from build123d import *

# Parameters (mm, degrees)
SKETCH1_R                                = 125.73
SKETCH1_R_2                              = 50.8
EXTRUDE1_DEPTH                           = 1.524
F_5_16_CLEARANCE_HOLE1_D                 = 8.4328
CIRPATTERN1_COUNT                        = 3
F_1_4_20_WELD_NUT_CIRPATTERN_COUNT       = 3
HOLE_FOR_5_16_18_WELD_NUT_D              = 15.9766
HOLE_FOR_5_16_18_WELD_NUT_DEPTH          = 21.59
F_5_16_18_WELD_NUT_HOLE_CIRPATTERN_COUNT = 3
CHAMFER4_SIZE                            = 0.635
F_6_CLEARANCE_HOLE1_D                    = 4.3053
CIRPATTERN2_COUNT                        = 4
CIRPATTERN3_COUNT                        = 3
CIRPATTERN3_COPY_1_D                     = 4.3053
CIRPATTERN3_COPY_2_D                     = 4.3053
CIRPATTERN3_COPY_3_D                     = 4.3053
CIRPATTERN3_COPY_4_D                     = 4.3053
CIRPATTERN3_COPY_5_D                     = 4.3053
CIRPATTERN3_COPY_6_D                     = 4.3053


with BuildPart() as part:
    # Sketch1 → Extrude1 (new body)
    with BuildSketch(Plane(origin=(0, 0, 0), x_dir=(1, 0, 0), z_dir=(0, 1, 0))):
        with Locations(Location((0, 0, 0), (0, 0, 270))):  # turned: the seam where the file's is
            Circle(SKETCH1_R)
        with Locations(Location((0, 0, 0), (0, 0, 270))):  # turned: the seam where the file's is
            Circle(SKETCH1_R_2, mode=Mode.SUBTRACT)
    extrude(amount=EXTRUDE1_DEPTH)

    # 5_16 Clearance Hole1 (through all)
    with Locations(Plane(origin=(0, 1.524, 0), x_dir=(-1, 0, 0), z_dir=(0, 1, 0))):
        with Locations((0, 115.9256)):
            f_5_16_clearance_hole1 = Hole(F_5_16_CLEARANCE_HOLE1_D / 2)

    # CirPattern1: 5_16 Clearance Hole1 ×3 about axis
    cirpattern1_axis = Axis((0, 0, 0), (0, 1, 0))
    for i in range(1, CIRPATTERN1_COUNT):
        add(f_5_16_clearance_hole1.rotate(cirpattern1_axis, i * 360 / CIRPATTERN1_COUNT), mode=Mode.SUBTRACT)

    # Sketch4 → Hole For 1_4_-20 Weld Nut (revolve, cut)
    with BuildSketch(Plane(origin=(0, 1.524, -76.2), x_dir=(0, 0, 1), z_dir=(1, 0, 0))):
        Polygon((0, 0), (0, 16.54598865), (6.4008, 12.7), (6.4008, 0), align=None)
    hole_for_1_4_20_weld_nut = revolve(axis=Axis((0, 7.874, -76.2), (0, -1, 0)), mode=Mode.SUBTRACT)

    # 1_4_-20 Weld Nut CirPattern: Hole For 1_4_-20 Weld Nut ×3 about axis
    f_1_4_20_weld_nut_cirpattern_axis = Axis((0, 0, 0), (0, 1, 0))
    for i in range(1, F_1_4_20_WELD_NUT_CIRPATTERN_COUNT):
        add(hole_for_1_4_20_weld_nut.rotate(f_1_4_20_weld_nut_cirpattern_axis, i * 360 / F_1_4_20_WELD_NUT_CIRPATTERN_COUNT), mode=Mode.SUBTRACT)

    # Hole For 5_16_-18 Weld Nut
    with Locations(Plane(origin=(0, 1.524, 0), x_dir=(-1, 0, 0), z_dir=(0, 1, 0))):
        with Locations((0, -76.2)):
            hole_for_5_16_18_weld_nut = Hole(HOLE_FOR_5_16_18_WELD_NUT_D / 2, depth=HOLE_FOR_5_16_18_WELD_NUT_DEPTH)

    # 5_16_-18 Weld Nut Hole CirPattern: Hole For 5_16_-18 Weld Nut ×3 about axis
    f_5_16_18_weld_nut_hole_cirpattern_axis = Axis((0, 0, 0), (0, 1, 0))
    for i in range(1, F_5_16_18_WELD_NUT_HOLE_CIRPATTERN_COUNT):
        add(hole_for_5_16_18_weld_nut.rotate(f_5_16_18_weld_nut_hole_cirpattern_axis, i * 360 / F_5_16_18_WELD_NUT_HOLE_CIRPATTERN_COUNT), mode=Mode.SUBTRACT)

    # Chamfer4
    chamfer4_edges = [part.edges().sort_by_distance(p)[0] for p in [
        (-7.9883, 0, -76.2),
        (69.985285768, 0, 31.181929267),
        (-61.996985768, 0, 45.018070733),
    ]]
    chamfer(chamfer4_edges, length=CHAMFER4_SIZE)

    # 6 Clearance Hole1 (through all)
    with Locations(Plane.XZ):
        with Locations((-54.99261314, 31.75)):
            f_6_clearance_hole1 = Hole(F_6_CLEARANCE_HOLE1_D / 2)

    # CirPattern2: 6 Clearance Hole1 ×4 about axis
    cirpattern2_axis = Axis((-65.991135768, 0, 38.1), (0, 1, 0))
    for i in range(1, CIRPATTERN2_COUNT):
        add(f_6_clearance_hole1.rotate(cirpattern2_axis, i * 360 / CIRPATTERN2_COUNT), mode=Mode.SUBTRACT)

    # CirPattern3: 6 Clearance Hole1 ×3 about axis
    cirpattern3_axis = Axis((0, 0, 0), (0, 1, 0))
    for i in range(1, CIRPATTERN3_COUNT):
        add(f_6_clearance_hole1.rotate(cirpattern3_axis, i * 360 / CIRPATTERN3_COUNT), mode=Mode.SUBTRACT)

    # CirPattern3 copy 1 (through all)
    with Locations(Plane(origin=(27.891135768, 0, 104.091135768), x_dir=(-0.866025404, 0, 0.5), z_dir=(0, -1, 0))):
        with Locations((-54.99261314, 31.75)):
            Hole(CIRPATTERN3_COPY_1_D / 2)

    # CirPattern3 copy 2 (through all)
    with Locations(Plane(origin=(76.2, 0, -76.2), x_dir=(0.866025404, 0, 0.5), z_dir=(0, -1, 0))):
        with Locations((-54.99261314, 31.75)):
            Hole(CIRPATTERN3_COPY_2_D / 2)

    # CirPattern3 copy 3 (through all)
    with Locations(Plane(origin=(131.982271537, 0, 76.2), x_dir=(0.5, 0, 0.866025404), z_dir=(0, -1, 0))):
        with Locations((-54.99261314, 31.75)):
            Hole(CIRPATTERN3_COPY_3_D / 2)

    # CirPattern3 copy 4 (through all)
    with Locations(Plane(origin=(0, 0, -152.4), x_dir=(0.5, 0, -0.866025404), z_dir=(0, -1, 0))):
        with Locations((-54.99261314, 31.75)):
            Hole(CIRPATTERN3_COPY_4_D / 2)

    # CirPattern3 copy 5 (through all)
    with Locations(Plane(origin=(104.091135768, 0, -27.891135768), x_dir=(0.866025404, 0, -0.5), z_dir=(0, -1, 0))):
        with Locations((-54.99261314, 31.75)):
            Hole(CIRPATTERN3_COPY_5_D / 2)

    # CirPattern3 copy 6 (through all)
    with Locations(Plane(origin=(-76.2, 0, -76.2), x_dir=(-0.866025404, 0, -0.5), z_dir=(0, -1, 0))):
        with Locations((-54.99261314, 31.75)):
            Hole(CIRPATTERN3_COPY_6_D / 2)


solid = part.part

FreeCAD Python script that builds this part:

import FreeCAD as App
import Part
import Sketcher
from FreeCAD import Vector
Q = App.Units.Quantity


def edges_at(feature, points):
    """Names of the edges that pass closest to the given points."""
    edges = feature.Shape.Edges
    near = lambda p: min(range(len(edges)), key=lambda i: edges[i].distToShape(Part.Vertex(*p))[0])
    return sorted({f"Edge{near(p) + 1}" for p in points})

doc = App.newDocument("Part")
body = doc.addObject("PartDesign::Body", "Body")

sketch1 = body.newObject("Sketcher::SketchObject", "Sketch")
sketch1.AttachmentSupport = (doc.getObject("XZ_Plane"), [""])
sketch1.MapMode = "FlatFace"
sketch1.addGeometry(Part.Circle(Vector(0, 0, 0), Vector(0, 0, 1), 126), False)
sketch1.addGeometry(Part.Circle(Vector(0, 0, 0), Vector(0, 0, 1), 51), False)
sketch1.addConstraint(Sketcher.Constraint("Coincident", 0, 3, -1, 1))
sketch1.addConstraint(Sketcher.Constraint("Coincident", 1, 3, -1, 1))
sketch1.addConstraint(Sketcher.Constraint("Diameter", 1, Q("4 in")))
sketch1.addConstraint(Sketcher.Constraint("Diameter", 0, Q("9.9 in")))
pad1 = body.newObject("PartDesign::Pad", "Pad")
pad1.Profile = sketch1
pad1.Length = Q("0.06 in")
pad1.Reversed = True

sketch2 = body.newObject("Sketcher::SketchObject", "Sketch001")
sketch2.AttachmentSupport = (doc.getObject("XZ_Plane"), [""])
sketch2.MapMode = "FlatFace"
sketch2.AttachmentOffset = App.Placement(Vector(0, 0, -0.06 * 25.4), App.Rotation())
sketch2.addGeometry(Part.Circle(Vector(0, 115.9, 0), Vector(0, 0, 1), 4.2), False)
sketch2.addConstraint(Sketcher.Constraint("PointOnObject", 0, 3, -2))
sketch2.addConstraint(Sketcher.Constraint("Diameter", 0, Q("0.332 in")))
sketch2.addConstraint(Sketcher.Constraint("DistanceY", -1, 1, 0, 3, Q("4.564 in")))
doc.recompute()
hole = body.newObject("PartDesign::Hole", "Hole")
hole.Profile = sketch2
hole.ThreadType = "None"
hole.Diameter = Q("0.332 in")
hole.DepthType = "ThroughAll"
hole.Reversed = True
doc.recompute()

polarpattern = body.newObject("PartDesign::PolarPattern", "PolarPattern")
polarpattern.Originals = [hole]
polarpattern.Axis = (doc.getObject("Y_Axis"), [""])
polarpattern.Angle = 360
polarpattern.Occurrences = 3
body.Tip = polarpattern

sketch3 = body.newObject("Sketcher::SketchObject", "Sketch002")
sketch3.AttachmentSupport = (doc.getObject("YZ_Plane"), [""])
sketch3.MapMode = "FlatFace"
sketch3.addGeometry(Part.LineSegment(Vector(-15, -76, 0), Vector(2, -76, 0)), False)
sketch3.addGeometry(Part.LineSegment(Vector(2, -76, 0), Vector(2, -70, 0)), False)
sketch3.addGeometry(Part.LineSegment(Vector(2, -70, 0), Vector(-11, -70, 0)), False)
sketch3.addGeometry(Part.LineSegment(Vector(-11, -70, 0), Vector(-15, -76, 0)), False)
sketch3.addGeometry(Part.LineSegment(Vector(2, -76, 0), Vector(-15, -76, 0)), True)
sketch3.addConstraint(Sketcher.Constraint("Coincident", 0, 2, 1, 1))
sketch3.addConstraint(Sketcher.Constraint("Coincident", 1, 2, 2, 1))
sketch3.addConstraint(Sketcher.Constraint("Coincident", 2, 2, 3, 1))
sketch3.addConstraint(Sketcher.Constraint("Coincident", 3, 2, 0, 1))
sketch3.addConstraint(Sketcher.Constraint("Horizontal", 0))
sketch3.addConstraint(Sketcher.Constraint("Vertical", 1))
sketch3.addConstraint(Sketcher.Constraint("Horizontal", 2))
sketch3.addConstraint(Sketcher.Constraint("Horizontal", 4))
sketch3.addConstraint(Sketcher.Constraint("Coincident", 4, 1, 0, 2))
sketch3.addConstraint(Sketcher.Constraint("Equal", 0, 4))
sketch3.addConstraint(Sketcher.Constraint("DistanceX", 2, 2, 2, 1, Q("0.5 in")))
sketch3.addConstraint(Sketcher.Constraint("DistanceY", 0, 2, -1, 1, Q("3 in")))
sketch3.addConstraint(Sketcher.Constraint("Angle", 3, Q("-121 deg")))
sketch3.addConstraint(Sketcher.Constraint("DistanceY", 1, 1, 1, 2, Q("0.252 in")))
sketch3.addConstraint(Sketcher.Constraint("DistanceX", -1, 1, 0, 2, Q("0.06 in")))
groove = body.newObject("PartDesign::Groove", "Groove")
groove.Profile = sketch3
groove.ReferenceAxis = (sketch3, ["Axis0"])
groove.Angle = 360
doc.recompute()

polarpattern2 = body.newObject("PartDesign::PolarPattern", "PolarPattern001")
polarpattern2.Originals = [groove]
polarpattern2.Axis = (doc.getObject("Y_Axis"), [""])
polarpattern2.Angle = 360
polarpattern2.Occurrences = 3
body.Tip = polarpattern2

sketch4 = body.newObject("Sketcher::SketchObject", "Sketch003")
sketch4.AttachmentSupport = (doc.getObject("XZ_Plane"), [""])
sketch4.MapMode = "FlatFace"
sketch4.AttachmentOffset = App.Placement(Vector(0, 0, -0.06 * 25.4), App.Rotation())
sketch4.addGeometry(Part.Circle(Vector(0, -76, 0), Vector(0, 0, 1), 8), False)
sketch4.addConstraint(Sketcher.Constraint("PointOnObject", 0, 3, -2))
sketch4.addConstraint(Sketcher.Constraint("Diameter", 0, Q("0.629 in")))
sketch4.addConstraint(Sketcher.Constraint("DistanceY", 0, 3, -1, 1, Q("3 in")))
doc.recompute()
hole2 = body.newObject("PartDesign::Hole", "Hole001")
hole2.Profile = sketch4
hole2.ThreadType = "None"
hole2.Diameter = Q("0.629 in")
hole2.DepthType = "Dimension"
hole2.Depth = Q("0.85 in")
hole2.DrillPoint = "Flat"
hole2.Reversed = True
doc.recompute()

polarpattern3 = body.newObject("PartDesign::PolarPattern", "PolarPattern002")
polarpattern3.Originals = [hole2]
polarpattern3.Axis = (doc.getObject("Y_Axis"), [""])
polarpattern3.Angle = 360
polarpattern3.Occurrences = 3
body.Tip = polarpattern3
doc.recompute()

chamfer = body.newObject("PartDesign::Chamfer", "Chamfer")
chamfer.Base = (polarpattern3, edges_at(polarpattern3, [(-7.988, 0, -76.2), (69.985, 0, 31.182), (-61.997, 0, 45.018)]))
chamfer.Size = Q("0.025 in")

sketch5 = body.newObject("Sketcher::SketchObject", "Sketch004")
sketch5.AttachmentSupport = (doc.getObject("XZ_Plane"), [""])
sketch5.MapMode = "FlatFace"
sketch5.addGeometry(Part.Circle(Vector(-55, 31.8, 0), Vector(0, 0, 1), 2.2), False)
sketch5.addConstraint(Sketcher.Constraint("Diameter", 0, Q("0.1695 in")))
sketch5.addConstraint(Sketcher.Constraint("DistanceY", -1, 1, 0, 3, Q("1.25 in")))
sketch5.addConstraint(Sketcher.Constraint("DistanceX", 0, 3, -1, 1, Q("54.992613 mm")))
doc.recompute()
hole3 = body.newObject("PartDesign::Hole", "Hole002")
hole3.Profile = sketch5
hole3.ThreadType = "None"
hole3.Diameter = Q("0.1695 in")
hole3.DepthType = "ThroughAll"
doc.recompute()

datumline = body.newObject("PartDesign::Line", "DatumLine")
datumline.Placement = App.Placement(Vector(-65.991136, 0, 38.1), App.Rotation(Vector(0, 0, 1), Vector(0, 1, 0)))
polarpattern4 = body.newObject("PartDesign::PolarPattern", "PolarPattern003")
polarpattern4.Originals = [hole3]
polarpattern4.Axis = (datumline, [""])
polarpattern4.Angle = 360
polarpattern4.Occurrences = 4
body.Tip = polarpattern4
doc.recompute()

polarpattern5 = body.newObject("PartDesign::PolarPattern", "PolarPattern004")
polarpattern5.Originals = [hole3]
polarpattern5.Axis = (doc.getObject("Y_Axis"), [""])
polarpattern5.Angle = 360
polarpattern5.Occurrences = 3
body.Tip = polarpattern5

sketch6 = body.newObject("Sketcher::SketchObject", "Sketch005")
sketch6.AttachmentSupport = (doc.getObject("XZ_Plane"), [""])
sketch6.MapMode = "FlatFace"
sketch6.addGeometry(Part.Circle(Vector(59.6, 49.1, 0), Vector(0, 0, 1), 2.2), False)
sketch6.addConstraint(Sketcher.Constraint("Diameter", 0, Q("0.1695 in")))
sketch6.addConstraint(Sketcher.Constraint("DistanceX", -1, 1, 0, 3, Q("59.641136 mm")))
sketch6.addConstraint(Sketcher.Constraint("DistanceY", -1, 1, 0, 3, Q("49.098523 mm")))
doc.recompute()
hole4 = body.newObject("PartDesign::Hole", "Hole003")
hole4.Profile = sketch6
hole4.ThreadType = "None"
hole4.Diameter = Q("0.1695 in")
hole4.DepthType = "ThroughAll"

sketch7 = body.newObject("Sketcher::SketchObject", "Sketch006")
sketch7.AttachmentSupport = (doc.getObject("XZ_Plane"), [""])
sketch7.MapMode = "FlatFace"
sketch7.addGeometry(Part.Circle(Vector(12.7, -76.2, 0), Vector(0, 0, 1), 2.2), False)
sketch7.addConstraint(Sketcher.Constraint("DistanceY", 0, 3, -1, 1, Q("3 in")))
sketch7.addConstraint(Sketcher.Constraint("Diameter", 0, Q("0.1695 in")))
sketch7.addConstraint(Sketcher.Constraint("DistanceX", -1, 1, 0, 3, Q("0.5 in")))
doc.recompute()
hole5 = body.newObject("PartDesign::Hole", "Hole004")
hole5.Profile = sketch7
hole5.ThreadType = "None"
hole5.Diameter = Q("0.1695 in")
hole5.DepthType = "ThroughAll"

sketch8 = body.newObject("Sketcher::SketchObject", "Sketch007")
sketch8.AttachmentSupport = (doc.getObject("XZ_Plane"), [""])
sketch8.MapMode = "FlatFace"
sketch8.addGeometry(Part.Circle(Vector(77, 44.5, 0), Vector(0, 0, 1), 2.2), False)
sketch8.addConstraint(Sketcher.Constraint("Diameter", 0, Q("0.1695 in")))
sketch8.addConstraint(Sketcher.Constraint("DistanceY", -1, 1, 0, 3, Q("1.75 in")))
sketch8.addConstraint(Sketcher.Constraint("DistanceX", -1, 1, 0, 3, Q("76.989658 mm")))
doc.recompute()
hole6 = body.newObject("PartDesign::Hole", "Hole005")
hole6.Profile = sketch8
hole6.ThreadType = "None"
hole6.Diameter = Q("0.1695 in")
hole6.DepthType = "ThroughAll"

sketch9 = body.newObject("Sketcher::SketchObject", "Sketch008")
sketch9.AttachmentSupport = (doc.getObject("XZ_Plane"), [""])
sketch9.MapMode = "FlatFace"
sketch9.addGeometry(Part.Circle(Vector(0, -88.9, 0), Vector(0, 0, 1), 2.2), False)
sketch9.addConstraint(Sketcher.Constraint("PointOnObject", 0, 3, -2))
sketch9.addConstraint(Sketcher.Constraint("Diameter", 0, Q("0.1695 in")))
sketch9.addConstraint(Sketcher.Constraint("DistanceY", 0, 3, -1, 1, Q("3.5 in")))
doc.recompute()
hole7 = body.newObject("PartDesign::Hole", "Hole006")
hole7.Profile = sketch9
hole7.ThreadType = "None"
hole7.Diameter = Q("0.1695 in")
hole7.DepthType = "ThroughAll"

sketch10 = body.newObject("Sketcher::SketchObject", "Sketch009")
sketch10.AttachmentSupport = (doc.getObject("XZ_Plane"), [""])
sketch10.MapMode = "FlatFace"
sketch10.addGeometry(Part.Circle(Vector(72.3, 27.1, 0), Vector(0, 0, 1), 2.2), False)
sketch10.addConstraint(Sketcher.Constraint("Diameter", 0, Q("0.1695 in")))
sketch10.addConstraint(Sketcher.Constraint("DistanceX", -1, 1, 0, 3, Q("72.341136 mm")))
sketch10.addConstraint(Sketcher.Constraint("DistanceY", -1, 1, 0, 3, Q("27.101477 mm")))
doc.recompute()
hole8 = body.newObject("PartDesign::Hole", "Hole007")
hole8.Profile = sketch10
hole8.ThreadType = "None"
hole8.Diameter = Q("0.1695 in")
hole8.DepthType = "ThroughAll"

sketch11 = body.newObject("Sketcher::SketchObject", "Sketch010")
sketch11.AttachmentSupport = (doc.getObject("XZ_Plane"), [""])
sketch11.MapMode = "FlatFace"
sketch11.addGeometry(Part.Circle(Vector(-12.7, -76.2, 0), Vector(0, 0, 1), 2.2), False)
sketch11.addConstraint(Sketcher.Constraint("DistanceY", 0, 3, -1, 1, Q("3 in")))
sketch11.addConstraint(Sketcher.Constraint("Diameter", 0, Q("0.1695 in")))
sketch11.addConstraint(Sketcher.Constraint("DistanceX", 0, 3, -1, 1, Q("0.5 in")))
doc.recompute()
hole9 = body.newObject("PartDesign::Hole", "Hole008")
hole9.Profile = sketch11
hole9.ThreadType = "None"
hole9.Diameter = Q("0.1695 in")
hole9.DepthType = "ThroughAll"

doc.recompute()
